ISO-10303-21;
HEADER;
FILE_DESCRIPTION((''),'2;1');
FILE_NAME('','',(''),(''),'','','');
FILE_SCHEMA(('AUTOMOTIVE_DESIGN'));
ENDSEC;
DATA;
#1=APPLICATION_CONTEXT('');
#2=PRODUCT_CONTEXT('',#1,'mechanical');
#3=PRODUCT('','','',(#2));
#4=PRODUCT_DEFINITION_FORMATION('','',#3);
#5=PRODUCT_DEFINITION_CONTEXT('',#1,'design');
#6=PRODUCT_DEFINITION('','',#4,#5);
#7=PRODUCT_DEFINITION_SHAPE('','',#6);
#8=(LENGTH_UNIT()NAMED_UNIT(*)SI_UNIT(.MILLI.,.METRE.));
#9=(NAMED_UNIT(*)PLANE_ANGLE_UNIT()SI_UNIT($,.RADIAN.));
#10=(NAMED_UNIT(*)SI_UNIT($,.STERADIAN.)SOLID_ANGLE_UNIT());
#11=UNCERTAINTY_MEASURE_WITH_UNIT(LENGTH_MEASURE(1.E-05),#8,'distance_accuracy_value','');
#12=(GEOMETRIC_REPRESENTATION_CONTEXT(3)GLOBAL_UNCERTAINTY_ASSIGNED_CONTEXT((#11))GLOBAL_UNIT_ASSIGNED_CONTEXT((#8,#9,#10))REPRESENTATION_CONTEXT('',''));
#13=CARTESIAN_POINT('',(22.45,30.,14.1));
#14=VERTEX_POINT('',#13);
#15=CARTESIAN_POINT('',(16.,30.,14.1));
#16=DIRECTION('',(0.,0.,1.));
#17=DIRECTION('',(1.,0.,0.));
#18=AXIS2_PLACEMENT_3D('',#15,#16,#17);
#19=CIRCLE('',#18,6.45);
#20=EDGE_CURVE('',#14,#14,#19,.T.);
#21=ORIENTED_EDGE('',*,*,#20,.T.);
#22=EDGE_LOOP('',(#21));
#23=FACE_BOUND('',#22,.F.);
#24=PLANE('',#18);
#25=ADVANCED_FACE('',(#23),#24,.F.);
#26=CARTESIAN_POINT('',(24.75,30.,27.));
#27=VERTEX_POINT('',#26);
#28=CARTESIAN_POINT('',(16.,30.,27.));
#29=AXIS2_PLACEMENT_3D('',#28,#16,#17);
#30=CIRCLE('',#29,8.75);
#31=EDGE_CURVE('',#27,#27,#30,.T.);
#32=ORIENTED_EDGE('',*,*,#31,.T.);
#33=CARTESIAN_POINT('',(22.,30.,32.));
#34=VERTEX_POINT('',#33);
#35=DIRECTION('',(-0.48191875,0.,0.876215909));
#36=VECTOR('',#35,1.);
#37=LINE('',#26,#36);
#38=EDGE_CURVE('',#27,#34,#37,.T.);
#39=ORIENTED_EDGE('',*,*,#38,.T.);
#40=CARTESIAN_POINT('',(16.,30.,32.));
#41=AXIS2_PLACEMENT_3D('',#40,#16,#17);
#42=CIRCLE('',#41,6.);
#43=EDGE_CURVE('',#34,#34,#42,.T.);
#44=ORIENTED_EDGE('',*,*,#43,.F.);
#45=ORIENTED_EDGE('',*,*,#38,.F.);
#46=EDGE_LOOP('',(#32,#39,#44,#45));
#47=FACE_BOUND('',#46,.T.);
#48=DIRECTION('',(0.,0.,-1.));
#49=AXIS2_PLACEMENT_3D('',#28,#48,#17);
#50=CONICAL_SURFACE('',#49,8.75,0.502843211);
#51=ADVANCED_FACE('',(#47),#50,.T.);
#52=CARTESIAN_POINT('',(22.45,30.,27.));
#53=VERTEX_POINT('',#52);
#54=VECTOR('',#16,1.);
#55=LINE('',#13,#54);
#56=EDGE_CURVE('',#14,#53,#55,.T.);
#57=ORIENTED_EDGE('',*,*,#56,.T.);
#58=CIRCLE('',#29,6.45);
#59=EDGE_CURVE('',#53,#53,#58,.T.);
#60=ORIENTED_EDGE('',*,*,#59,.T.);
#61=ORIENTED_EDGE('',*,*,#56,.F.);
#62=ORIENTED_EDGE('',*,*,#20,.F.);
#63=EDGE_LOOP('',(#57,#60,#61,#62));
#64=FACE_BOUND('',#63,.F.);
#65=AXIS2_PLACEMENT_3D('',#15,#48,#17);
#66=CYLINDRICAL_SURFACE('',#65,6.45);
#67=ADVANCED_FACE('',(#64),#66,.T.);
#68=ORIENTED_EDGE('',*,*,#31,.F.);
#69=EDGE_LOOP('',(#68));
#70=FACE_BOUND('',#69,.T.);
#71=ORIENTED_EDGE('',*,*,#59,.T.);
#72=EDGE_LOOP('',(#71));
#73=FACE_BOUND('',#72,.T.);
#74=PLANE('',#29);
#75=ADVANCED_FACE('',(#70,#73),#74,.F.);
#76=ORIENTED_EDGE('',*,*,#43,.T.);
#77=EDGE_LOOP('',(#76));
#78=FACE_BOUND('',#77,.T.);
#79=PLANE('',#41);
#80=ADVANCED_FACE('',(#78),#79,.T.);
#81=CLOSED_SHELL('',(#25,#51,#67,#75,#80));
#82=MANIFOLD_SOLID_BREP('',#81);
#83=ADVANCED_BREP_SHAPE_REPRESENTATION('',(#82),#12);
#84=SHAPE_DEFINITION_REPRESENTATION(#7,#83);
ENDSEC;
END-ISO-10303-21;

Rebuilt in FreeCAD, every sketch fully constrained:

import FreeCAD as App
import Part
import Sketcher
Q = App.Units.Quantity


def add_polygon(sketch, points):
    """Adds a closed chain of lines whose ends are joined by coincident constraints."""
    first, n = sketch.GeometryCount, len(points)
    for a, b in zip(points, points[1:] + points[:1]):
        sketch.addGeometry(Part.LineSegment(App.Vector(*a, 0), App.Vector(*b, 0)), False)
    for i in range(n):
        sketch.addConstraint(Sketcher.Constraint("Coincident", first + i, 2, first + (i + 1) % n, 1))

doc = App.newDocument("Part")
params = doc.addObject("Spreadsheet::Sheet", "Params")
for row, (alias, value) in enumerate([
    ("sketch1_width", "6 mm"),
    ("sketch1_height", "5 mm"),
    ("sketch1_width2", "8.75 mm"),
    ("revolution_angle", "360 deg"),
    ("sketch2_diameter", "12.9 mm"),
    ("pad1_length", "12.9 mm"),
], start=1):
    params.set(f"A{row}", alias)
    params.set(f"B{row}", "=" + value)
    params.setAlias(f"B{row}", alias)

body = doc.addObject("PartDesign::Body", "Body")

# Sketch on XZ plane
sketch1 = body.newObject("Sketcher::SketchObject", "Sketch")
sketch1.AttachmentSupport = (doc.getObject("XZ_Plane"), [""])
sketch1.MapMode = "FlatFace"
add_polygon(sketch1, [(0, 0), (8.75, 0), (6, 5), (0, 5)])  # lines 0-3
sketch1.addConstraint([
    Sketcher.Constraint("Horizontal", 0),
    Sketcher.Constraint("Horizontal", 2),
    Sketcher.Constraint("Vertical", 3),
    Sketcher.Constraint("Coincident", 3, 2, -1, 1),
    Sketcher.Constraint("DistanceX", 2, 2, 2, 1, Q("6 mm")),
    Sketcher.Constraint("DistanceY", 3, 2, 3, 1, Q("5 mm")),
    Sketcher.Constraint("DistanceX", 0, 1, 0, 2, Q("8.75 mm")),
])
sketch1.setExpression("Constraints[8]", "Params.sketch1_width")
sketch1.setExpression("Constraints[9]", "Params.sketch1_height")
sketch1.setExpression("Constraints[10]", "Params.sketch1_width2")
revolution = body.newObject("PartDesign::Revolution", "Revolution")
revolution.Profile = sketch1
revolution.ReferenceAxis = (sketch1, ["V_Axis"])
revolution.setExpression("Angle", "Params.revolution_angle")
body2 = doc.addObject("PartDesign::Body", "Body001")

# Sketch on XY plane
sketch2 = body2.newObject("Sketcher::SketchObject", "Sketch001")
sketch2.AttachmentSupport = (doc.getObject("XY_Plane001"), [""])
sketch2.MapMode = "FlatFace"
sketch2.AttachmentOffset = App.Placement(App.Vector(0, 0, -12.9), App.Rotation())
sketch2.addGeometry(Part.Circle(App.Vector(0, 0, 0), App.Vector(0, 0, 1), 6.45), False)
sketch2.addConstraint([
    Sketcher.Constraint("Coincident", 0, 3, -1, 1),
    Sketcher.Constraint("Diameter", 0, Q("12.9 mm")),
])
sketch2.setExpression("Constraints[1]", "Params.sketch2_diameter")
pad1 = body2.newObject("PartDesign::Pad", "Pad")
pad1.Profile = sketch2
pad1.setExpression("Length", "Params.pad1_length")
doc.recompute()

boolean = body2.newObject("PartDesign::Boolean", "Boolean")
boolean.Type = "Fuse"
boolean.addObjects([body])
body3 = doc.addObject("PartDesign::Body", "Body002")
doc.recompute()

body2.Placement = App.Placement(App.Vector(16, 30, 27), App.Rotation(App.Vector(0, 0, 1), 0))
boolean2 = body3.newObject("PartDesign::Boolean", "Boolean001")
boolean2.Type = "Fuse"
boolean2.addObjects([body2])

doc.recompute()
